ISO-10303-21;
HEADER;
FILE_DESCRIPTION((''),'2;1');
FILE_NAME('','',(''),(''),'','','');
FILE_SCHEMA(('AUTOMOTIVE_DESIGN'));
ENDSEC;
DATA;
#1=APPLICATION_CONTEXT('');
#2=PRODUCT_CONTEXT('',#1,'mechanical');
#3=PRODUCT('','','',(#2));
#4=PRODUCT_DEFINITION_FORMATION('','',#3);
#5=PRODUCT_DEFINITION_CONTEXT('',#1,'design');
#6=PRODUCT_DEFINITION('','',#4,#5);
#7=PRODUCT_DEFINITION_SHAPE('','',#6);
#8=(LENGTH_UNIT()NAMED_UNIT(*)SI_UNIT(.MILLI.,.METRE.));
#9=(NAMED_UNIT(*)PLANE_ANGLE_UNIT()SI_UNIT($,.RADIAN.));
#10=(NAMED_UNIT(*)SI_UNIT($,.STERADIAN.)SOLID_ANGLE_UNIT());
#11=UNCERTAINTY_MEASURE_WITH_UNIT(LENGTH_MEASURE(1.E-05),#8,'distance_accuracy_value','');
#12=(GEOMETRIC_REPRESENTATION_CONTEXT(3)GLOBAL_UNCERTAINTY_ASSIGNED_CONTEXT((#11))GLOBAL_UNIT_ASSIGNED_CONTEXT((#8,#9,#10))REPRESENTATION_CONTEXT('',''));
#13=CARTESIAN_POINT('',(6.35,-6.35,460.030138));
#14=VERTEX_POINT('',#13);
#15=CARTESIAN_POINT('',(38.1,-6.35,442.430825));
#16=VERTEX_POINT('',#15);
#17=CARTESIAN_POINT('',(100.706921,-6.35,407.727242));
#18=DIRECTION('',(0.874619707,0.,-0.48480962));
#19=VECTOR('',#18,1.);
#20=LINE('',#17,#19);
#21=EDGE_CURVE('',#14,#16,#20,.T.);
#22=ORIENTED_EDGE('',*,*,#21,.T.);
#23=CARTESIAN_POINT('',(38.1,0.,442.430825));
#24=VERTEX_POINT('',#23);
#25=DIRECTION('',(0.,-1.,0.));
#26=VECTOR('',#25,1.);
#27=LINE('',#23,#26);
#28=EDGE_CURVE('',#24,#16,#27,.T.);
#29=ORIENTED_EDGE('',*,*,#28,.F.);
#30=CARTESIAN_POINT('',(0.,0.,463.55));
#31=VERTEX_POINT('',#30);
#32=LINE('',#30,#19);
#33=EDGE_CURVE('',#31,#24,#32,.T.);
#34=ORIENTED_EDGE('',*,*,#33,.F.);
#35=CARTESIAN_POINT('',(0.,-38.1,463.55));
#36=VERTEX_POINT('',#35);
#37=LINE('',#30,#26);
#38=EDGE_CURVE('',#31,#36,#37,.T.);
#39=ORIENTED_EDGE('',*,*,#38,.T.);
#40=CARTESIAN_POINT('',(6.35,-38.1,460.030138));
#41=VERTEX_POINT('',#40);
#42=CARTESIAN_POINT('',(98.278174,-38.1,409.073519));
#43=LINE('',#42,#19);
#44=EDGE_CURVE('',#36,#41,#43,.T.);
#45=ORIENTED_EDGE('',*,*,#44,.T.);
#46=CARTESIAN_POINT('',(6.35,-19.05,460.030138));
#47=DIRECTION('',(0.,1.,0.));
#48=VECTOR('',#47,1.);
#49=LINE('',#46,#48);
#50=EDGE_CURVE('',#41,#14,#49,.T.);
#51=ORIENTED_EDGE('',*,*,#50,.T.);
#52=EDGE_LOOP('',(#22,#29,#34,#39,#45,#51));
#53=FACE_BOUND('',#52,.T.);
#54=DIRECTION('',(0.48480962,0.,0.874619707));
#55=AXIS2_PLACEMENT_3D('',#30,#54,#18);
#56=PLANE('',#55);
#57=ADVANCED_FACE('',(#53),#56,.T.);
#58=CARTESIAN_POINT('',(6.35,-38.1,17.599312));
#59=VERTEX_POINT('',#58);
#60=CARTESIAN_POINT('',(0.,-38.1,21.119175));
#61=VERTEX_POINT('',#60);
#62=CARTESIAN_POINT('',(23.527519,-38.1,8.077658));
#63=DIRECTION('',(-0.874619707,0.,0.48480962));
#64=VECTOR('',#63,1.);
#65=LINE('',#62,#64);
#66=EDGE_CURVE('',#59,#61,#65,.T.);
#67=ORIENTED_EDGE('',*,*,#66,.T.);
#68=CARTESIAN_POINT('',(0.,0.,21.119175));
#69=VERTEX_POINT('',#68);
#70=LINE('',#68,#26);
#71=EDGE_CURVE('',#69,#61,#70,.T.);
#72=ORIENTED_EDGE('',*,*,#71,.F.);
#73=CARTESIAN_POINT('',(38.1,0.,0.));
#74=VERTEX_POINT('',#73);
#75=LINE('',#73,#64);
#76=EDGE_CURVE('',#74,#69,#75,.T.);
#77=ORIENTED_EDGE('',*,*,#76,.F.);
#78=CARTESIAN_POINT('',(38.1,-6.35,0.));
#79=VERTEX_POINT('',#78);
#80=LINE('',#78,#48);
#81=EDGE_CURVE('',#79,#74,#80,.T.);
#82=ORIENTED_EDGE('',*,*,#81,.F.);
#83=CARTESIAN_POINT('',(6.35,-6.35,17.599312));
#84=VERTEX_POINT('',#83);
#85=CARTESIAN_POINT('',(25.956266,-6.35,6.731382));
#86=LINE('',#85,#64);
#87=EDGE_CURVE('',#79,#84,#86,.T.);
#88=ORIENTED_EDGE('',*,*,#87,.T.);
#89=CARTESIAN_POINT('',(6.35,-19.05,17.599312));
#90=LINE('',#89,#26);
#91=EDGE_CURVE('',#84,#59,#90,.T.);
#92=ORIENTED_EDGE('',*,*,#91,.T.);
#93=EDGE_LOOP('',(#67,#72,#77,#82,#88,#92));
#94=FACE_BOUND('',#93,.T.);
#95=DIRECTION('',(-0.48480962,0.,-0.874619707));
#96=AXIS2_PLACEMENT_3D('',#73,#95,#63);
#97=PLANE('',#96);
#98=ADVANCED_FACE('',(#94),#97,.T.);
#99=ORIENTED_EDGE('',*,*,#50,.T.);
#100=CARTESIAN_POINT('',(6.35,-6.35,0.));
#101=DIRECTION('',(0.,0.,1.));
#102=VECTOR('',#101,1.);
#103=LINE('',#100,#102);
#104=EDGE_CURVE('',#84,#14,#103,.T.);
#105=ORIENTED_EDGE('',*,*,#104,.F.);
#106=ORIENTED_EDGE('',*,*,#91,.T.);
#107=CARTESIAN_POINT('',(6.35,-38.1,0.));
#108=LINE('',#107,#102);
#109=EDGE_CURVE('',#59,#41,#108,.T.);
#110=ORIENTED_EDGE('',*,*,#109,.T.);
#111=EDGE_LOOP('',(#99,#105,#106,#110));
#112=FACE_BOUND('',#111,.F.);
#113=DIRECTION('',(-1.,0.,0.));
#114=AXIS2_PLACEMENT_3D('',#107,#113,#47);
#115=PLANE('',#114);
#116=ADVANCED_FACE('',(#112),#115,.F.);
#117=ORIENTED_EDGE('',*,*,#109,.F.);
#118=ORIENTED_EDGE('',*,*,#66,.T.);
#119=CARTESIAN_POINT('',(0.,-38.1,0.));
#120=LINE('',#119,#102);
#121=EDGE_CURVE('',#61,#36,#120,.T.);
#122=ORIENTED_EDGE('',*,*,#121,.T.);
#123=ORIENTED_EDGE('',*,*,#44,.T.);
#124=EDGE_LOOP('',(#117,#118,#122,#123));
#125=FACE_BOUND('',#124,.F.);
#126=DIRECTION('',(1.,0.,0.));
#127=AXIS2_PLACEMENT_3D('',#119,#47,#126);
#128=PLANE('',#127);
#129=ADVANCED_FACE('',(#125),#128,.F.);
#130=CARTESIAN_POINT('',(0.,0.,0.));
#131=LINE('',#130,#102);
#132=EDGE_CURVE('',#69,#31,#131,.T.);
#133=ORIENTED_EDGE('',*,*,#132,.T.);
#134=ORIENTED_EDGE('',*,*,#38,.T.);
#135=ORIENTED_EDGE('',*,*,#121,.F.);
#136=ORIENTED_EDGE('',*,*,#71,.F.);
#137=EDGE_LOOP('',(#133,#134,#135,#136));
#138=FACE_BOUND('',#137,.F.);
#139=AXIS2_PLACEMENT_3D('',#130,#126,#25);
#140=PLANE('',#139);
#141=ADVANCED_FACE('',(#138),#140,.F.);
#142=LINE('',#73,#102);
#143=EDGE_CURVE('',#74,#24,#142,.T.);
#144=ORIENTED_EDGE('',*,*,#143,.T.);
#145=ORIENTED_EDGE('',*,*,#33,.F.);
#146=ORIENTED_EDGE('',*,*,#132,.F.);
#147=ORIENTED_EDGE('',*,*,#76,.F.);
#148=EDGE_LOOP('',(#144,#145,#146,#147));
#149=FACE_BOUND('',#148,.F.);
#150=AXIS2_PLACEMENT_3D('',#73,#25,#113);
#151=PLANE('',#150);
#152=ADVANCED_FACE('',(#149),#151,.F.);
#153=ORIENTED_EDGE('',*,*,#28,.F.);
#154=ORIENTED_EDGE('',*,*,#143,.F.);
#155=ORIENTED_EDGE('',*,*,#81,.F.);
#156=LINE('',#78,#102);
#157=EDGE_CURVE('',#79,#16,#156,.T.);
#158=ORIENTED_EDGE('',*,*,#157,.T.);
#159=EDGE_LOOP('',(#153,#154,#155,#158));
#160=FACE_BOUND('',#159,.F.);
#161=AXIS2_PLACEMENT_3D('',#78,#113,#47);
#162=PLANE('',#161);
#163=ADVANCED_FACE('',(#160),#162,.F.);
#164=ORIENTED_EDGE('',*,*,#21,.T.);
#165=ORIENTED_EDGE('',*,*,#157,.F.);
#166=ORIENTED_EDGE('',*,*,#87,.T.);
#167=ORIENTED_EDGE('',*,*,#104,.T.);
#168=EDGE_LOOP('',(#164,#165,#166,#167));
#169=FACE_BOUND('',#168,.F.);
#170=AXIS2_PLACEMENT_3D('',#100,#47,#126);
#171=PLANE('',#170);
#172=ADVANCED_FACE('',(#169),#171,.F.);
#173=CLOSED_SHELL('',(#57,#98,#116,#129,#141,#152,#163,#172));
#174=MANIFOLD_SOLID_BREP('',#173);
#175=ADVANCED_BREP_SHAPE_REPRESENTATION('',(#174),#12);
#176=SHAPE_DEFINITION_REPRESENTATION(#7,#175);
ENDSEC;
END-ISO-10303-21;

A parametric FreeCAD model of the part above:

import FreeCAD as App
import Part
import Sketcher
from FreeCAD import Vector
Q = App.Units.Quantity

doc = App.newDocument("Part")
body = doc.addObject("PartDesign::Body", "Body")

sketch1 = body.newObject("Sketcher::SketchObject", "Sketch")
sketch1.AttachmentSupport = (doc.getObject("XY_Plane"), [""])
sketch1.MapMode = "FlatFace"
sketch1.addGeometry([
    Part.LineSegment(Vector(0, 0, 0), Vector(0, -38, 0)),
    Part.LineSegment(Vector(0, -38, 0), Vector(6, -38, 0)),
    Part.LineSegment(Vector(6, -38, 0), Vector(6, -6, 0)),
    Part.LineSegment(Vector(6, -6, 0), Vector(38, -6, 0)),
    Part.LineSegment(Vector(38, -6, 0), Vector(38, 0, 0)),
    Part.LineSegment(Vector(38, 0, 0), Vector(0, 0, 0)),
], False)
sketch1.addConstraint([
    Sketcher.Constraint("Coincident", 0, 2, 1, 1),
    Sketcher.Constraint("Coincident", 1, 2, 2, 1),
    Sketcher.Constraint("Coincident", 2, 2, 3, 1),
    Sketcher.Constraint("Coincident", 3, 2, 4, 1),
    Sketcher.Constraint("Coincident", 4, 2, 5, 1),
    Sketcher.Constraint("Coincident", 5, 2, 0, 1),
    Sketcher.Constraint("Vertical", 0),
    Sketcher.Constraint("Horizontal", 1),
    Sketcher.Constraint("Vertical", 2),
    Sketcher.Constraint("Horizontal", 3),
    Sketcher.Constraint("Vertical", 4),
    Sketcher.Constraint("Horizontal", 5),
    Sketcher.Constraint("Coincident", 5, 2, -1, 1),
    Sketcher.Constraint("Equal", 5, 0),
    Sketcher.Constraint("Equal", 3, 2),
    Sketcher.Constraint("DistanceX", 5, 2, 5, 1, Q("1.5 in")),
    Sketcher.Constraint("DistanceX", 1, 1, 1, 2, Q("0.25 in")),
])
pad1 = body.newObject("PartDesign::Pad", "Pad")
pad1.Profile = sketch1
pad1.Length = Q("18.25 in")

sketch2 = body.newObject("Sketcher::SketchObject", "Sketch001")
sketch2.AttachmentSupport = (doc.getObject("XZ_Plane"), [""])
sketch2.MapMode = "FlatFace"
sketch2.addGeometry([
    Part.LineSegment(Vector(38, 0, 0), Vector(0, 0, 0)),
    Part.LineSegment(Vector(0, 0, 0), Vector(0, 21, 0)),
    Part.LineSegment(Vector(0, 21, 0), Vector(38, 0, 0)),
    Part.LineSegment(Vector(0, 464, 0), Vector(38, 464, 0)),
    Part.LineSegment(Vector(38, 464, 0), Vector(38, 442, 0)),
    Part.LineSegment(Vector(38, 442, 0), Vector(0, 464, 0)),
], False)
sketch2.addConstraint([
    Sketcher.Constraint("Coincident", 0, 2, 1, 1),
    Sketcher.Constraint("Coincident", 1, 2, 2, 1),
    Sketcher.Constraint("Coincident", 2, 2, 0, 1),
    Sketcher.Constraint("Coincident", 3, 2, 4, 1),
    Sketcher.Constraint("Coincident", 4, 2, 5, 1),
    Sketcher.Constraint("Coincident", 5, 2, 3, 1),
    Sketcher.Constraint("Horizontal", 0),
    Sketcher.Constraint("Vertical", 1),
    Sketcher.Constraint("Horizontal", 3),
    Sketcher.Constraint("Vertical", 4),
    Sketcher.Constraint("Coincident", 0, 2, -1, 1),
    Sketcher.Constraint("PointOnObject", 5, 2, -2),
    Sketcher.Constraint("Parallel", 2, 5),
    Sketcher.Constraint("Vertical", 2, 2, 3, 2),
    Sketcher.Constraint("DistanceX", 0, 2, 0, 1, Q("1.5 in")),
    Sketcher.Constraint("Angle", 2, Q("-29 deg")),
    Sketcher.Constraint("DistanceY", -1, 1, 3, 2, Q("18.25 in")),
])
pocket1 = body.newObject("PartDesign::Pocket", "Pocket")
pocket1.Profile = sketch2
pocket1.Type = "ThroughAll"
pocket1.Reversed = True

doc.recompute()
